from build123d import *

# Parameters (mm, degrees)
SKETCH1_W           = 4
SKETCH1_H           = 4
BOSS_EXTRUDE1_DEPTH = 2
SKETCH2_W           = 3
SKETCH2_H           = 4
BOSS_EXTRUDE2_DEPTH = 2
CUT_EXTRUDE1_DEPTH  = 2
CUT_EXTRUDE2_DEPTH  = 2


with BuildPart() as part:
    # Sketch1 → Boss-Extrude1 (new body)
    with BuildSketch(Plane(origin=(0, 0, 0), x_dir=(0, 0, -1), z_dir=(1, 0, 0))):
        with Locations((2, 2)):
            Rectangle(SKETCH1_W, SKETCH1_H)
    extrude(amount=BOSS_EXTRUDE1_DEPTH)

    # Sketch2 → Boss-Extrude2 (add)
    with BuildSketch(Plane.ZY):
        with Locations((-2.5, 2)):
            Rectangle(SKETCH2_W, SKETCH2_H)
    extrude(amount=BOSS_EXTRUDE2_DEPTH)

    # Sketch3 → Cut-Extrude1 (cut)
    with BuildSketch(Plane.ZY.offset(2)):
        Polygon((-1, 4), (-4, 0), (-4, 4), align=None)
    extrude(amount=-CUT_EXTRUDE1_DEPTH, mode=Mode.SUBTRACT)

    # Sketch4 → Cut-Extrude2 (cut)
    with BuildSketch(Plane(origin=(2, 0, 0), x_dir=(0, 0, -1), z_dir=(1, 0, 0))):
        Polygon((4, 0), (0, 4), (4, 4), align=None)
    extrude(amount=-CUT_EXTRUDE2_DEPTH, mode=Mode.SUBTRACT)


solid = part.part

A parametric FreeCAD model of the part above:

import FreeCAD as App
import Part
import Sketcher
Q = App.Units.Quantity


def add_polygon(sketch, points):
    """Adds a closed chain of lines whose ends are joined by coincident constraints."""
    first, n = sketch.GeometryCount, len(points)
    for a, b in zip(points, points[1:] + points[:1]):
        sketch.addGeometry(Part.LineSegment(App.Vector(*a, 0), App.Vector(*b, 0)), False)
    for i in range(n):
        sketch.addConstraint(Sketcher.Constraint("Coincident", first + i, 2, first + (i + 1) % n, 1))

doc = App.newDocument("Part")
body = doc.addObject("PartDesign::Body", "Body")

sketch1 = doc.addObject("Sketcher::SketchObject", "Sketch")
body.addObject(sketch1)
sketch1.AttachmentSupport = (doc.YZ_Plane, [""])
sketch1.MapMode = "FlatFace"
add_polygon(sketch1, [(4, 0), (0, 0), (0, -4), (4, -4)])
sketch1.addConstraint(Sketcher.Constraint("Horizontal", 0))
sketch1.addConstraint(Sketcher.Constraint("Vertical", 1))
sketch1.addConstraint(Sketcher.Constraint("Horizontal", 2))
sketch1.addConstraint(Sketcher.Constraint("Vertical", 3))
sketch1.addConstraint(Sketcher.Constraint("Coincident", 0, 2, -1, 1))
sketch1.addConstraint(Sketcher.Constraint("Equal", 2, 1))
sketch1.addConstraint(Sketcher.Constraint("DistanceX", 0, 2, 0, 1, Q("4 mm")))
pad1 = doc.addObject("PartDesign::Pad", "Pad")
body.addObject(pad1)
pad1.Profile = sketch1
pad1.Length = 2

sketch2 = doc.addObject("Sketcher::SketchObject", "Sketch001")
body.addObject(sketch2)
sketch2.AttachmentSupport = (doc.YZ_Plane, [""])
sketch2.MapMode = "FlatFace"
add_polygon(sketch2, [(4, -4), (0, -4), (0, -1), (4, -1)])
sketch2.addConstraint(Sketcher.Constraint("Horizontal", 0))
sketch2.addConstraint(Sketcher.Constraint("Vertical", 1))
sketch2.addConstraint(Sketcher.Constraint("Horizontal", 2))
sketch2.addConstraint(Sketcher.Constraint("Vertical", 3))
sketch2.addConstraint(Sketcher.Constraint("PointOnObject", 0, 2, -2))
sketch2.addConstraint(Sketcher.Constraint("DistanceX", 0, 2, 0, 1, Q("4 mm")))
sketch2.addConstraint(Sketcher.Constraint("DistanceY", 1, 1, 1, 2, Q("3 mm")))
sketch2.addConstraint(Sketcher.Constraint("DistanceY", 0, 2, -1, 1, Q("4 mm")))
pad2 = doc.addObject("PartDesign::Pad", "Pad001")
body.addObject(pad2)
pad2.Profile = sketch2
pad2.Length = 2
pad2.Reversed = True

sketch3 = doc.addObject("Sketcher::SketchObject", "Sketch002")
body.addObject(sketch3)
sketch3.AttachmentSupport = (doc.YZ_Plane, [""])
sketch3.MapMode = "FlatFace"
sketch3.AttachmentOffset = App.Placement(App.Vector(0, 0, -2), App.Rotation())
add_polygon(sketch3, [(0, -4), (4, -1), (4, -4)])
sketch3.addConstraint(Sketcher.Constraint("Vertical", 1))
sketch3.addConstraint(Sketcher.Constraint("Horizontal", 2))
sketch3.addConstraint(Sketcher.Constraint("PointOnObject", 2, 2, -2))
sketch3.addConstraint(Sketcher.Constraint("DistanceX", 2, 2, 2, 1, Q("4 mm")))
sketch3.addConstraint(Sketcher.Constraint("DistanceY", 1, 2, 1, 1, Q("3 mm")))
sketch3.addConstraint(Sketcher.Constraint("DistanceY", 0, 2, -1, 1, Q("1 mm")))
pocket1 = doc.addObject("PartDesign::Pocket", "Pocket")
body.addObject(pocket1)
pocket1.Profile = sketch3
pocket1.Length = 2
pocket1.Reversed = True

sketch4 = doc.addObject("Sketcher::SketchObject", "Sketch003")
body.addObject(sketch4)
sketch4.AttachmentSupport = (doc.YZ_Plane, [""])
sketch4.MapMode = "FlatFace"
sketch4.AttachmentOffset = App.Placement(App.Vector(0, 0, 2), App.Rotation())
add_polygon(sketch4, [(4, 0), (0, -4), (4, -4)])
sketch4.addConstraint(Sketcher.Constraint("Horizontal", 1))
sketch4.addConstraint(Sketcher.Constraint("Vertical", 2))
sketch4.addConstraint(Sketcher.Constraint("PointOnObject", 0, 2, -2))
sketch4.addConstraint(Sketcher.Constraint("PointOnObject", 2, 2, -1))
sketch4.addConstraint(Sketcher.Constraint("Equal", 1, 2))
sketch4.addConstraint(Sketcher.Constraint("DistanceX", 1, 1, 1, 2, Q("4 mm")))
pocket2 = doc.addObject("PartDesign::Pocket", "Pocket001")
body.addObject(pocket2)
pocket2.Profile = sketch4
pocket2.Length = 2

doc.recompute()
